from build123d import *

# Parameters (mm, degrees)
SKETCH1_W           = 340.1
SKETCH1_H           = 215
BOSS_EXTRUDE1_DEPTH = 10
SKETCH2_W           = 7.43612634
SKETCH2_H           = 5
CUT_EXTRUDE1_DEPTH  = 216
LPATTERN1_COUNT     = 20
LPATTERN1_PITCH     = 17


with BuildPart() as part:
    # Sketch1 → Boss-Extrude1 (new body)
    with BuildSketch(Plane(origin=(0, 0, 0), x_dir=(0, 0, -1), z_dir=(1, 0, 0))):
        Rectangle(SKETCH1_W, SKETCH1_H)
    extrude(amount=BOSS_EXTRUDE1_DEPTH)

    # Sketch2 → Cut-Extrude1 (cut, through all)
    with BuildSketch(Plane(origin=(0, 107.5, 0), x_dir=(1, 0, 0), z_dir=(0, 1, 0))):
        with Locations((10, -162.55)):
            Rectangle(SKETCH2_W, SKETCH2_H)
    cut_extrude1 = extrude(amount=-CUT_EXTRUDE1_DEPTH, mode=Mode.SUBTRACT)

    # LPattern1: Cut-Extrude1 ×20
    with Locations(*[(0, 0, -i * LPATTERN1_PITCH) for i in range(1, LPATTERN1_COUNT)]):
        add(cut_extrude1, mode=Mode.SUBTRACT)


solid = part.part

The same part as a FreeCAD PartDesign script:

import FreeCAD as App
import Part
import Sketcher

doc = App.newDocument("Part")
body = doc.addObject("PartDesign::Body", "Body")

# Sketch on YZ plane
sketch1 = doc.addObject("Sketcher::SketchObject", "Sketch")
body.addObject(sketch1)
sketch1.AttachmentSupport = (doc.YZ_Plane, [""])
sketch1.MapMode = "FlatFace"
sketch1.addGeometry([
    Part.LineSegment(App.Vector(108, 170, 0), App.Vector(-108, 170, 0)),
    Part.LineSegment(App.Vector(-108, 170, 0), App.Vector(-108, -170, 0)),
    Part.LineSegment(App.Vector(-108, -170, 0), App.Vector(108, -170, 0)),
    Part.LineSegment(App.Vector(108, -170, 0), App.Vector(108, 170, 0)),
], False)
sketch1.addConstraint([
    Sketcher.Constraint("Coincident", 0, 2, 1, 1),
    Sketcher.Constraint("Coincident", 1, 2, 2, 1),
    Sketcher.Constraint("Coincident", 2, 2, 3, 1),
    Sketcher.Constraint("Coincident", 3, 2, 0, 1),
    Sketcher.Constraint("Horizontal", 0),
    Sketcher.Constraint("Vertical", 1),
    Sketcher.Constraint("Horizontal", 2),
    Sketcher.Constraint("Vertical", 3),
    Sketcher.Constraint("Symmetric", 0, 2, 2, 2, -1, 1),
    Sketcher.Constraint("DistanceX", 0, 2, 0, 1, 215.0),
    Sketcher.Constraint("DistanceY", 1, 2, 1, 1, 340.1),
])
pad1 = doc.addObject("PartDesign::Pad", "Pad")
body.addObject(pad1)
pad1.Profile = sketch1
pad1.Length = 10

# Sketch on XZ plane
sketch2 = doc.addObject("Sketcher::SketchObject", "Sketch001")
body.addObject(sketch2)
sketch2.AttachmentSupport = (doc.XZ_Plane, [""])
sketch2.MapMode = "FlatFace"
sketch2.AttachmentOffset = App.Placement(App.Vector(0, 0, -107.5), App.Rotation())
sketch2.addGeometry([
    Part.LineSegment(App.Vector(6, 160, 0), App.Vector(6, 165, 0)),
    Part.LineSegment(App.Vector(6, 165, 0), App.Vector(14, 165, 0)),
    Part.LineSegment(App.Vector(14, 165, 0), App.Vector(14, 160, 0)),
    Part.LineSegment(App.Vector(14, 160, 0), App.Vector(6, 160, 0)),
], False)
sketch2.addConstraint([
    Sketcher.Constraint("Coincident", 0, 2, 1, 1),
    Sketcher.Constraint("Coincident", 1, 2, 2, 1),
    Sketcher.Constraint("Coincident", 2, 2, 3, 1),
    Sketcher.Constraint("Coincident", 3, 2, 0, 1),
    Sketcher.Constraint("Vertical", 0),
    Sketcher.Constraint("Horizontal", 1),
    Sketcher.Constraint("Vertical", 2),
    Sketcher.Constraint("Horizontal", 3),
    Sketcher.Constraint("DistanceY", 0, 1, 0, 2, 5.0),
    Sketcher.Constraint("DistanceY", -1, 1, 0, 2, 165.05),
    Sketcher.Constraint("DistanceX", 1, 1, 1, 2, 7.436126),
    Sketcher.Constraint("DistanceX", -1, 1, 0, 2, 6.281937),
])
pocket1 = doc.addObject("PartDesign::Pocket", "Pocket")
body.addObject(pocket1)
pocket1.Profile = sketch2
pocket1.Type = "ThroughAll"
pocket1.Reversed = True
doc.recompute()

linearpattern = doc.addObject("PartDesign::LinearPattern", "LinearPattern")
body.addObject(linearpattern)
linearpattern.Originals = [pocket1]
linearpattern.Direction = (doc.Z_Axis, [""])
linearpattern.Mode = "offset"
linearpattern.Offset = 17
linearpattern.Occurrences = 20
linearpattern.Reversed = True
body.Tip = linearpattern

doc.recompute()
